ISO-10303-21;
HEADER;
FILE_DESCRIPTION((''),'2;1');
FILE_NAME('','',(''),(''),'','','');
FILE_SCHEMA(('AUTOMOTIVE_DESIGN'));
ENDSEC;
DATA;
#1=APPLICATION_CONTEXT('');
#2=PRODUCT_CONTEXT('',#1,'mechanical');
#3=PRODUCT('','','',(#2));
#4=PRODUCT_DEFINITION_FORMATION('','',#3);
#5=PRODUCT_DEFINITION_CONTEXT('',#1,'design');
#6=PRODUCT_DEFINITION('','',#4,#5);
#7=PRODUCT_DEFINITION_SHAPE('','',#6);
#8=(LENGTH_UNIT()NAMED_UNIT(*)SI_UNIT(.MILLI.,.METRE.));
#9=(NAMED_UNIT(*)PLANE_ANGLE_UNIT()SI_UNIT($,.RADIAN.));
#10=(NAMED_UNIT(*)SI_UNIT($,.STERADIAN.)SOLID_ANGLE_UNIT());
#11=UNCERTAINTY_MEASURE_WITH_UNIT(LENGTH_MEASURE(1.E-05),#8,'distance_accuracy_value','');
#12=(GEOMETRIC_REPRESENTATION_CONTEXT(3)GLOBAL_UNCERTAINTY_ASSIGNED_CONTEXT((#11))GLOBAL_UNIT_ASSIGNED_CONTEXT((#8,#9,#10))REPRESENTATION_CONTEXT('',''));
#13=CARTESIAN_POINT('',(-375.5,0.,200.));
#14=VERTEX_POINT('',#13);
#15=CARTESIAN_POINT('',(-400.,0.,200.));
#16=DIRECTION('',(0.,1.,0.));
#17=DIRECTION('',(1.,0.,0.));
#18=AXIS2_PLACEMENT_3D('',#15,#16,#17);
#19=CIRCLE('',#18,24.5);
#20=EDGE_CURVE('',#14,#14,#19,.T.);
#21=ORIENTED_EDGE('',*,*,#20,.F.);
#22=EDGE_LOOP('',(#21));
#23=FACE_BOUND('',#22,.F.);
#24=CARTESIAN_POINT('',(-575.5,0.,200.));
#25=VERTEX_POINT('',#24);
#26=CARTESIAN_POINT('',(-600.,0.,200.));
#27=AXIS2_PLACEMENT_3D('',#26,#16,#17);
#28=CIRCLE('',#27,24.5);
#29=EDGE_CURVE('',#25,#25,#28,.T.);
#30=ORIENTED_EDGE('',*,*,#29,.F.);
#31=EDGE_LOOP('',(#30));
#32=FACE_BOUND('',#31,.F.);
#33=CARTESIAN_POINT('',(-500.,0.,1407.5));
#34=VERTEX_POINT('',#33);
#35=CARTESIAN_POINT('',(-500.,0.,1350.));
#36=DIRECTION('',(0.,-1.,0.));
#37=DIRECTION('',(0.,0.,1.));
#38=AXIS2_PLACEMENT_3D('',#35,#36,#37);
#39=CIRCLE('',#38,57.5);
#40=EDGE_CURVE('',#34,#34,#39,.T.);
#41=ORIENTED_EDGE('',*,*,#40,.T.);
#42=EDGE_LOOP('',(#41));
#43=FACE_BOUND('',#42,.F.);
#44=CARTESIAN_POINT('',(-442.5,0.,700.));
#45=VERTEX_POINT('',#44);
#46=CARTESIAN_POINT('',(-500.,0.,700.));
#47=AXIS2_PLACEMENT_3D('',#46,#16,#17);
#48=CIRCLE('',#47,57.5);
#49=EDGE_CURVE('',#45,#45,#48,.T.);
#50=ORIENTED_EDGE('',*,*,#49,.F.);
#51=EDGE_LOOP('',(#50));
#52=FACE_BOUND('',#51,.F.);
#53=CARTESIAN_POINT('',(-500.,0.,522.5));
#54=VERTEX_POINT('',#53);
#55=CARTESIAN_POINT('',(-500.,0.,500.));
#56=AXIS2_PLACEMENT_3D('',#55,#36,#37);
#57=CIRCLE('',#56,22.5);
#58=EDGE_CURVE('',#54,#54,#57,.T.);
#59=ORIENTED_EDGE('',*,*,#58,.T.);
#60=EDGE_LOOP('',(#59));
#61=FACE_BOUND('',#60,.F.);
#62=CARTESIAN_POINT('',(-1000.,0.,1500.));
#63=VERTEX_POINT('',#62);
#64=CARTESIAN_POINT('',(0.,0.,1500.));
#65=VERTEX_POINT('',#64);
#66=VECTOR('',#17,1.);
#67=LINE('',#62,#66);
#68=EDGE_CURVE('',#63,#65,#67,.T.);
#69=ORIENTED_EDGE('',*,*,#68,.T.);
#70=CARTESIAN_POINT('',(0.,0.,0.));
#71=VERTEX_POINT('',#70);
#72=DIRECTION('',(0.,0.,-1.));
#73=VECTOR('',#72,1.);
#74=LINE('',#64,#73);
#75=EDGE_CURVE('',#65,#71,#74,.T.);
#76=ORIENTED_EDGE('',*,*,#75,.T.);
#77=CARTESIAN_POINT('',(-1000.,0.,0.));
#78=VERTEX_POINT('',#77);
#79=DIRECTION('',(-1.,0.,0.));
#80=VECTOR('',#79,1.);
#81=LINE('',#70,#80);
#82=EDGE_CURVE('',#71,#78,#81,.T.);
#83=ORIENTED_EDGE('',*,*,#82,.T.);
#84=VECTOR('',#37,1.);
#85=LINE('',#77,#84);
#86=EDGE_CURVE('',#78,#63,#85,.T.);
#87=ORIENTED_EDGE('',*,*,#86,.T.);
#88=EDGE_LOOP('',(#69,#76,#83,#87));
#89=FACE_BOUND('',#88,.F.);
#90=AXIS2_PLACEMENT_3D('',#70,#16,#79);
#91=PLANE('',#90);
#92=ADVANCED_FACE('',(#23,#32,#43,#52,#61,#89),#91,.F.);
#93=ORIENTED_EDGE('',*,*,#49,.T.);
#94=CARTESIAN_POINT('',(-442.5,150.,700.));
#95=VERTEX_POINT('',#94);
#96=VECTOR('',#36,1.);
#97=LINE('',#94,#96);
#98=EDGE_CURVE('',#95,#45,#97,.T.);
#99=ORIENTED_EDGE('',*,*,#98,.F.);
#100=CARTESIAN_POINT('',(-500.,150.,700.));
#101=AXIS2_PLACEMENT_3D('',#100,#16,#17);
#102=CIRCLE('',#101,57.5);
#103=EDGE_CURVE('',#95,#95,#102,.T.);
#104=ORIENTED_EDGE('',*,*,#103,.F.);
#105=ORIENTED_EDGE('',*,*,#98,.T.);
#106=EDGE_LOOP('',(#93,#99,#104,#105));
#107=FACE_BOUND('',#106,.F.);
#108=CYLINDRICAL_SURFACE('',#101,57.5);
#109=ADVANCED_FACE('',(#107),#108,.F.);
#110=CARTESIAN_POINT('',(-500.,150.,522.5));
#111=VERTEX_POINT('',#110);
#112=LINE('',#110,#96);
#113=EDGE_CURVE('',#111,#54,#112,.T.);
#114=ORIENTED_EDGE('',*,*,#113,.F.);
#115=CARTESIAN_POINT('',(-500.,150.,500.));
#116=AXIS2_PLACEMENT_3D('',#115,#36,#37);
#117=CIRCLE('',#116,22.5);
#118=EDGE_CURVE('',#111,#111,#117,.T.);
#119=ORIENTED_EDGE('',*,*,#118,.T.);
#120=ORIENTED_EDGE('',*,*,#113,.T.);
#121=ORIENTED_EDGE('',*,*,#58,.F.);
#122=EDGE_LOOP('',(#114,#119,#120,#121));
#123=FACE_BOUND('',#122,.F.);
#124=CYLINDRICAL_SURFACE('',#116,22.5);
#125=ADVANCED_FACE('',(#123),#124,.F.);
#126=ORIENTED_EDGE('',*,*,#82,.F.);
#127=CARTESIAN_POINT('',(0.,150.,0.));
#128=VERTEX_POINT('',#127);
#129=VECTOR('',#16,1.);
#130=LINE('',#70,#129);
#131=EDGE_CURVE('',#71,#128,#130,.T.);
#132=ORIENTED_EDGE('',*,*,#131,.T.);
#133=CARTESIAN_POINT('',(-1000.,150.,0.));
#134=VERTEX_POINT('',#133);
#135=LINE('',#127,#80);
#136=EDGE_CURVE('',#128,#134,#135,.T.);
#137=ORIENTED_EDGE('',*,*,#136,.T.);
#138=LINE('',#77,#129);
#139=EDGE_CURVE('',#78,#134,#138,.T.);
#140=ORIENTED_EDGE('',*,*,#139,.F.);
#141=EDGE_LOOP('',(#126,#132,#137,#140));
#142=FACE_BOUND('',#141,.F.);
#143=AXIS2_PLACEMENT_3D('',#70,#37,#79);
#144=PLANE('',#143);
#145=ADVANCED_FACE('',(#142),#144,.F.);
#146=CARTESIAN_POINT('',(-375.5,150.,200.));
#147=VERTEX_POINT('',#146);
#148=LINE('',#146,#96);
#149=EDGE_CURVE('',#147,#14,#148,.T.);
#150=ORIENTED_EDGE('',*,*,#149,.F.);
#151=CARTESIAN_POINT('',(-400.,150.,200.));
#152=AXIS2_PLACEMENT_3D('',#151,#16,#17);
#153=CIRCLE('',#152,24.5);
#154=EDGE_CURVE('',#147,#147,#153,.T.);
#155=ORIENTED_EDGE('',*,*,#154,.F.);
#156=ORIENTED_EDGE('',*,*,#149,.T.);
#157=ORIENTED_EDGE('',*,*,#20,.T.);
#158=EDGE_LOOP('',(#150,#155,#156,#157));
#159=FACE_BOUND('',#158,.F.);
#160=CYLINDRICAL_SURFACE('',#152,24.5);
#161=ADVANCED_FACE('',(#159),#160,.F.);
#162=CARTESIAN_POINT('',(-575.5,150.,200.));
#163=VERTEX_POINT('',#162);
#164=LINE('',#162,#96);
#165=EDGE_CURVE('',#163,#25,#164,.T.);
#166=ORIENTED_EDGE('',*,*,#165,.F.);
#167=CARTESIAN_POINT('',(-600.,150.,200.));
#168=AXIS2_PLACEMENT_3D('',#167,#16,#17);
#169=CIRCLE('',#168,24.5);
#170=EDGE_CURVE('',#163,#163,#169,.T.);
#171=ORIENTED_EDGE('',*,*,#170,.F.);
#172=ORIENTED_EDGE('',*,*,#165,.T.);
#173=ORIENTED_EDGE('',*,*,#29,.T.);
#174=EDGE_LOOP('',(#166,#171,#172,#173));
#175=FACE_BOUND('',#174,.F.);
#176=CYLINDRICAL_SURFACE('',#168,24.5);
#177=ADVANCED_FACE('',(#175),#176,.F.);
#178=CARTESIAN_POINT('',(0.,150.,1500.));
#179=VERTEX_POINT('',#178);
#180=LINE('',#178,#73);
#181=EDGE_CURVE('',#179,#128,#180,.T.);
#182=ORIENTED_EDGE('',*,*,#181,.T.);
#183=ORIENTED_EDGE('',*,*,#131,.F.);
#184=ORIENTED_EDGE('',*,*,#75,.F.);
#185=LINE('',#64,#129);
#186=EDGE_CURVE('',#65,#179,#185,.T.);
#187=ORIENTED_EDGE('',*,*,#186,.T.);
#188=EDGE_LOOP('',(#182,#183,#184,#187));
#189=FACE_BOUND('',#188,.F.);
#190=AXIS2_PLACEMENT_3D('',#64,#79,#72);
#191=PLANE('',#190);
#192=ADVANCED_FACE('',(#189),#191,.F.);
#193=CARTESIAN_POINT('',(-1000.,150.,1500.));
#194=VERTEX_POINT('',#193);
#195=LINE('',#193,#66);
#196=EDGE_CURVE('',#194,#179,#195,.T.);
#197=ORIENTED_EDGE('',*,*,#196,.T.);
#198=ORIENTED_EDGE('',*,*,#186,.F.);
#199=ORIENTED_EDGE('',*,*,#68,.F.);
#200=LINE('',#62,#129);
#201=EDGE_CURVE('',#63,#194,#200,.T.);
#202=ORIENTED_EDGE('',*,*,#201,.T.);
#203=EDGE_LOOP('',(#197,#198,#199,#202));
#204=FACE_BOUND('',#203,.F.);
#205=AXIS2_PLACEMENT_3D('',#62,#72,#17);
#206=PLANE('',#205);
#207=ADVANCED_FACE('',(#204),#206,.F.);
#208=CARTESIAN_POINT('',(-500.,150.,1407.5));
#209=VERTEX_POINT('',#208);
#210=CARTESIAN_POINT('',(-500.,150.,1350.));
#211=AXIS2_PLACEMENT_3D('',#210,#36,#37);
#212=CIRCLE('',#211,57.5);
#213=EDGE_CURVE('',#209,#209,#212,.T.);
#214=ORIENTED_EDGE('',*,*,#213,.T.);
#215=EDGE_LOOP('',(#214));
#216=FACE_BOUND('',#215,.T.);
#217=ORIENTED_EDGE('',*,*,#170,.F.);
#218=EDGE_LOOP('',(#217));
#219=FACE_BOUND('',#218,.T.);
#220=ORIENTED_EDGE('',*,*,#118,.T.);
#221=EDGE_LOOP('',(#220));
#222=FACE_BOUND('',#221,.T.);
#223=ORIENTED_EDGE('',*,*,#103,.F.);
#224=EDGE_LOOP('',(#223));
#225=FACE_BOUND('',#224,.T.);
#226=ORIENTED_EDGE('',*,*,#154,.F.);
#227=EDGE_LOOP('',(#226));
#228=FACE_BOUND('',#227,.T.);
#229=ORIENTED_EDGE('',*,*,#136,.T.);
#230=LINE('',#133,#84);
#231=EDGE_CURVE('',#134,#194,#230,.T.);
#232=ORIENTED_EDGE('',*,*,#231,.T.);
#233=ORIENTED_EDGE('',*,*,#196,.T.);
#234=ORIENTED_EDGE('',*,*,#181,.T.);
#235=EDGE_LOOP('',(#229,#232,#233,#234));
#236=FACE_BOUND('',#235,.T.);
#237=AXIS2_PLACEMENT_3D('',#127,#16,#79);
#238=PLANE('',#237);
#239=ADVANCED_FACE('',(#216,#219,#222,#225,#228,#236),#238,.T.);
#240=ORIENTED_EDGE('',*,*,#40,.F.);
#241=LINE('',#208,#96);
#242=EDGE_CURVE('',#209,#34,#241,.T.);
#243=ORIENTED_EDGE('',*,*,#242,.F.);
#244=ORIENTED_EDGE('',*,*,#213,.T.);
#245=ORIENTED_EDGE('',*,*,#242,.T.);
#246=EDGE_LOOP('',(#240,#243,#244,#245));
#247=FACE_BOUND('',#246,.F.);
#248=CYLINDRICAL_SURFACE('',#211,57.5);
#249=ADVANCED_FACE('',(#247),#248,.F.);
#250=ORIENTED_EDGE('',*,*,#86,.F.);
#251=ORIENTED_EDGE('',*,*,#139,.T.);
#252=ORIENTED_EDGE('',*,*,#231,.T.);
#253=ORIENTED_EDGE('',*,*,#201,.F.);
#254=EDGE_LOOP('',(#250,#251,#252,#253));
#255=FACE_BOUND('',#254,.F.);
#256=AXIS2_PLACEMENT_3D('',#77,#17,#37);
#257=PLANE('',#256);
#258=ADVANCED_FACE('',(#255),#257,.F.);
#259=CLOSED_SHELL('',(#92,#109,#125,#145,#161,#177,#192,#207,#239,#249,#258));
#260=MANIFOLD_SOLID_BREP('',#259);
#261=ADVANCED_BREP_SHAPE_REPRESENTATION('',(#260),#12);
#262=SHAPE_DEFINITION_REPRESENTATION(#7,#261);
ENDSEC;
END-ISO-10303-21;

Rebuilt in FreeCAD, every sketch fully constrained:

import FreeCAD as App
import Part
import Sketcher

doc = App.newDocument("Part")
body = doc.addObject("PartDesign::Body", "Body")

# Sketch on XZ plane
sketch1 = body.newObject("Sketcher::SketchObject", "Sketch")
sketch1.AttachmentSupport = (doc.getObject("XZ_Plane"), [""])
sketch1.MapMode = "FlatFace"
sketch1.addGeometry([
    Part.LineSegment(App.Vector(0, 1500, 0), App.Vector(0, 0, 0)),
    Part.LineSegment(App.Vector(0, 0, 0), App.Vector(-1000, 0, 0)),
    Part.LineSegment(App.Vector(-1000, 0, 0), App.Vector(-1000, 1500, 0)),
    Part.LineSegment(App.Vector(-1000, 1500, 0), App.Vector(0, 1500, 0)),
], False)
sketch1.addConstraint([
    Sketcher.Constraint("Coincident", 0, 2, 1, 1),
    Sketcher.Constraint("Coincident", 1, 2, 2, 1),
    Sketcher.Constraint("Coincident", 2, 2, 3, 1),
    Sketcher.Constraint("Coincident", 3, 2, 0, 1),
    Sketcher.Constraint("Vertical", 0),
    Sketcher.Constraint("Horizontal", 1),
    Sketcher.Constraint("Vertical", 2),
    Sketcher.Constraint("Horizontal", 3),
    Sketcher.Constraint("Coincident", 0, 2, -1, 1),
    Sketcher.Constraint("DistanceX", 1, 2, 1, 1, 1000.0),
    Sketcher.Constraint("DistanceY", 0, 2, 0, 1, 1500.0),
])
pad1 = body.newObject("PartDesign::Pad", "Pad")
pad1.Profile = sketch1
pad1.Length = 150
pad1.Reversed = True

# Sketch on XZ plane
sketch2 = body.newObject("Sketcher::SketchObject", "Sketch001")
sketch2.AttachmentSupport = (doc.getObject("XZ_Plane"), [""])
sketch2.MapMode = "FlatFace"
sketch2.AttachmentOffset = App.Placement(App.Vector(0, 0, -150), App.Rotation())
sketch2.addGeometry(Part.Circle(App.Vector(-500, 700, 0), App.Vector(0, 0, 1), 57.5), False)
sketch2.addConstraint([
    Sketcher.Constraint("Diameter", 0, 115.0),
    Sketcher.Constraint("DistanceY", -1, 1, 0, 3, 700.0),
    Sketcher.Constraint("DistanceX", 0, 3, -1, 1, 500.0),
])
pocket1 = body.newObject("PartDesign::Pocket", "Pocket")
pocket1.Profile = sketch2
pocket1.Type = "ThroughAll"
pocket1.Reversed = True

# Sketch on XZ plane
sketch3 = body.newObject("Sketcher::SketchObject", "Sketch002")
sketch3.AttachmentSupport = (doc.getObject("XZ_Plane"), [""])
sketch3.MapMode = "FlatFace"
sketch3.AttachmentOffset = App.Placement(App.Vector(0, 0, -150), App.Rotation())
sketch3.addGeometry([
    Part.Circle(App.Vector(-400, 200, 0), App.Vector(0, 0, 1), 24.5),
    Part.Circle(App.Vector(-600, 200, 0), App.Vector(0, 0, 1), 24.5),
], False)
sketch3.addConstraint([
    Sketcher.Constraint("Equal", 0, 1),
    Sketcher.Constraint("Horizontal", 0, 3, 1, 3),
    Sketcher.Constraint("Diameter", 0, 49.0),
    Sketcher.Constraint("DistanceY", -1, 1, 0, 3, 200.0),
    Sketcher.Constraint("DistanceX", 1, 3, 0, 3, 200.0),
    Sketcher.Constraint("DistanceX", 0, 3, -1, 1, 400.0),
])
pocket2 = body.newObject("PartDesign::Pocket", "Pocket001")
pocket2.Profile = sketch3
pocket2.Length = 254
pocket2.Reversed = True

# Sketch on XZ plane
sketch4 = body.newObject("Sketcher::SketchObject", "Sketch003")
sketch4.AttachmentSupport = (doc.getObject("XZ_Plane"), [""])
sketch4.MapMode = "FlatFace"
sketch4.AttachmentOffset = App.Placement(App.Vector(0, 0, -150), App.Rotation())
sketch4.addGeometry(Part.Circle(App.Vector(-500, 500, 0), App.Vector(0, 0, 1), 22.5), False)
sketch4.addConstraint([
    Sketcher.Constraint("Diameter", 0, 45.0),
    Sketcher.Constraint("DistanceX", 0, 3, -1, 1, 500.0),
    Sketcher.Constraint("DistanceY", -1, 1, 0, 3, 500.0),
])
doc.recompute()
hole = body.newObject("PartDesign::Hole", "Hole")
hole.Profile = sketch4
hole.ThreadType = "None"
hole.Diameter = 45
hole.DepthType = "ThroughAll"
hole.Reversed = True

# Sketch on XZ plane
sketch5 = body.newObject("Sketcher::SketchObject", "Sketch004")
sketch5.AttachmentSupport = (doc.getObject("XZ_Plane"), [""])
sketch5.MapMode = "FlatFace"
sketch5.AttachmentOffset = App.Placement(App.Vector(0, 0, -150), App.Rotation())
sketch5.addGeometry(Part.Circle(App.Vector(-500, 1350, 0), App.Vector(0, 0, 1), 57.5), False)
sketch5.addConstraint([
    Sketcher.Constraint("Diameter", 0, 115.0),
    Sketcher.Constraint("DistanceX", 0, 3, -1, 1, 500.0),
    Sketcher.Constraint("DistanceY", -1, 1, 0, 3, 1350.0),
])
doc.recompute()
hole2 = body.newObject("PartDesign::Hole", "Hole001")
hole2.Profile = sketch5
hole2.ThreadType = "None"
hole2.Diameter = 115
hole2.DepthType = "ThroughAll"
hole2.Reversed = True

doc.recompute()
